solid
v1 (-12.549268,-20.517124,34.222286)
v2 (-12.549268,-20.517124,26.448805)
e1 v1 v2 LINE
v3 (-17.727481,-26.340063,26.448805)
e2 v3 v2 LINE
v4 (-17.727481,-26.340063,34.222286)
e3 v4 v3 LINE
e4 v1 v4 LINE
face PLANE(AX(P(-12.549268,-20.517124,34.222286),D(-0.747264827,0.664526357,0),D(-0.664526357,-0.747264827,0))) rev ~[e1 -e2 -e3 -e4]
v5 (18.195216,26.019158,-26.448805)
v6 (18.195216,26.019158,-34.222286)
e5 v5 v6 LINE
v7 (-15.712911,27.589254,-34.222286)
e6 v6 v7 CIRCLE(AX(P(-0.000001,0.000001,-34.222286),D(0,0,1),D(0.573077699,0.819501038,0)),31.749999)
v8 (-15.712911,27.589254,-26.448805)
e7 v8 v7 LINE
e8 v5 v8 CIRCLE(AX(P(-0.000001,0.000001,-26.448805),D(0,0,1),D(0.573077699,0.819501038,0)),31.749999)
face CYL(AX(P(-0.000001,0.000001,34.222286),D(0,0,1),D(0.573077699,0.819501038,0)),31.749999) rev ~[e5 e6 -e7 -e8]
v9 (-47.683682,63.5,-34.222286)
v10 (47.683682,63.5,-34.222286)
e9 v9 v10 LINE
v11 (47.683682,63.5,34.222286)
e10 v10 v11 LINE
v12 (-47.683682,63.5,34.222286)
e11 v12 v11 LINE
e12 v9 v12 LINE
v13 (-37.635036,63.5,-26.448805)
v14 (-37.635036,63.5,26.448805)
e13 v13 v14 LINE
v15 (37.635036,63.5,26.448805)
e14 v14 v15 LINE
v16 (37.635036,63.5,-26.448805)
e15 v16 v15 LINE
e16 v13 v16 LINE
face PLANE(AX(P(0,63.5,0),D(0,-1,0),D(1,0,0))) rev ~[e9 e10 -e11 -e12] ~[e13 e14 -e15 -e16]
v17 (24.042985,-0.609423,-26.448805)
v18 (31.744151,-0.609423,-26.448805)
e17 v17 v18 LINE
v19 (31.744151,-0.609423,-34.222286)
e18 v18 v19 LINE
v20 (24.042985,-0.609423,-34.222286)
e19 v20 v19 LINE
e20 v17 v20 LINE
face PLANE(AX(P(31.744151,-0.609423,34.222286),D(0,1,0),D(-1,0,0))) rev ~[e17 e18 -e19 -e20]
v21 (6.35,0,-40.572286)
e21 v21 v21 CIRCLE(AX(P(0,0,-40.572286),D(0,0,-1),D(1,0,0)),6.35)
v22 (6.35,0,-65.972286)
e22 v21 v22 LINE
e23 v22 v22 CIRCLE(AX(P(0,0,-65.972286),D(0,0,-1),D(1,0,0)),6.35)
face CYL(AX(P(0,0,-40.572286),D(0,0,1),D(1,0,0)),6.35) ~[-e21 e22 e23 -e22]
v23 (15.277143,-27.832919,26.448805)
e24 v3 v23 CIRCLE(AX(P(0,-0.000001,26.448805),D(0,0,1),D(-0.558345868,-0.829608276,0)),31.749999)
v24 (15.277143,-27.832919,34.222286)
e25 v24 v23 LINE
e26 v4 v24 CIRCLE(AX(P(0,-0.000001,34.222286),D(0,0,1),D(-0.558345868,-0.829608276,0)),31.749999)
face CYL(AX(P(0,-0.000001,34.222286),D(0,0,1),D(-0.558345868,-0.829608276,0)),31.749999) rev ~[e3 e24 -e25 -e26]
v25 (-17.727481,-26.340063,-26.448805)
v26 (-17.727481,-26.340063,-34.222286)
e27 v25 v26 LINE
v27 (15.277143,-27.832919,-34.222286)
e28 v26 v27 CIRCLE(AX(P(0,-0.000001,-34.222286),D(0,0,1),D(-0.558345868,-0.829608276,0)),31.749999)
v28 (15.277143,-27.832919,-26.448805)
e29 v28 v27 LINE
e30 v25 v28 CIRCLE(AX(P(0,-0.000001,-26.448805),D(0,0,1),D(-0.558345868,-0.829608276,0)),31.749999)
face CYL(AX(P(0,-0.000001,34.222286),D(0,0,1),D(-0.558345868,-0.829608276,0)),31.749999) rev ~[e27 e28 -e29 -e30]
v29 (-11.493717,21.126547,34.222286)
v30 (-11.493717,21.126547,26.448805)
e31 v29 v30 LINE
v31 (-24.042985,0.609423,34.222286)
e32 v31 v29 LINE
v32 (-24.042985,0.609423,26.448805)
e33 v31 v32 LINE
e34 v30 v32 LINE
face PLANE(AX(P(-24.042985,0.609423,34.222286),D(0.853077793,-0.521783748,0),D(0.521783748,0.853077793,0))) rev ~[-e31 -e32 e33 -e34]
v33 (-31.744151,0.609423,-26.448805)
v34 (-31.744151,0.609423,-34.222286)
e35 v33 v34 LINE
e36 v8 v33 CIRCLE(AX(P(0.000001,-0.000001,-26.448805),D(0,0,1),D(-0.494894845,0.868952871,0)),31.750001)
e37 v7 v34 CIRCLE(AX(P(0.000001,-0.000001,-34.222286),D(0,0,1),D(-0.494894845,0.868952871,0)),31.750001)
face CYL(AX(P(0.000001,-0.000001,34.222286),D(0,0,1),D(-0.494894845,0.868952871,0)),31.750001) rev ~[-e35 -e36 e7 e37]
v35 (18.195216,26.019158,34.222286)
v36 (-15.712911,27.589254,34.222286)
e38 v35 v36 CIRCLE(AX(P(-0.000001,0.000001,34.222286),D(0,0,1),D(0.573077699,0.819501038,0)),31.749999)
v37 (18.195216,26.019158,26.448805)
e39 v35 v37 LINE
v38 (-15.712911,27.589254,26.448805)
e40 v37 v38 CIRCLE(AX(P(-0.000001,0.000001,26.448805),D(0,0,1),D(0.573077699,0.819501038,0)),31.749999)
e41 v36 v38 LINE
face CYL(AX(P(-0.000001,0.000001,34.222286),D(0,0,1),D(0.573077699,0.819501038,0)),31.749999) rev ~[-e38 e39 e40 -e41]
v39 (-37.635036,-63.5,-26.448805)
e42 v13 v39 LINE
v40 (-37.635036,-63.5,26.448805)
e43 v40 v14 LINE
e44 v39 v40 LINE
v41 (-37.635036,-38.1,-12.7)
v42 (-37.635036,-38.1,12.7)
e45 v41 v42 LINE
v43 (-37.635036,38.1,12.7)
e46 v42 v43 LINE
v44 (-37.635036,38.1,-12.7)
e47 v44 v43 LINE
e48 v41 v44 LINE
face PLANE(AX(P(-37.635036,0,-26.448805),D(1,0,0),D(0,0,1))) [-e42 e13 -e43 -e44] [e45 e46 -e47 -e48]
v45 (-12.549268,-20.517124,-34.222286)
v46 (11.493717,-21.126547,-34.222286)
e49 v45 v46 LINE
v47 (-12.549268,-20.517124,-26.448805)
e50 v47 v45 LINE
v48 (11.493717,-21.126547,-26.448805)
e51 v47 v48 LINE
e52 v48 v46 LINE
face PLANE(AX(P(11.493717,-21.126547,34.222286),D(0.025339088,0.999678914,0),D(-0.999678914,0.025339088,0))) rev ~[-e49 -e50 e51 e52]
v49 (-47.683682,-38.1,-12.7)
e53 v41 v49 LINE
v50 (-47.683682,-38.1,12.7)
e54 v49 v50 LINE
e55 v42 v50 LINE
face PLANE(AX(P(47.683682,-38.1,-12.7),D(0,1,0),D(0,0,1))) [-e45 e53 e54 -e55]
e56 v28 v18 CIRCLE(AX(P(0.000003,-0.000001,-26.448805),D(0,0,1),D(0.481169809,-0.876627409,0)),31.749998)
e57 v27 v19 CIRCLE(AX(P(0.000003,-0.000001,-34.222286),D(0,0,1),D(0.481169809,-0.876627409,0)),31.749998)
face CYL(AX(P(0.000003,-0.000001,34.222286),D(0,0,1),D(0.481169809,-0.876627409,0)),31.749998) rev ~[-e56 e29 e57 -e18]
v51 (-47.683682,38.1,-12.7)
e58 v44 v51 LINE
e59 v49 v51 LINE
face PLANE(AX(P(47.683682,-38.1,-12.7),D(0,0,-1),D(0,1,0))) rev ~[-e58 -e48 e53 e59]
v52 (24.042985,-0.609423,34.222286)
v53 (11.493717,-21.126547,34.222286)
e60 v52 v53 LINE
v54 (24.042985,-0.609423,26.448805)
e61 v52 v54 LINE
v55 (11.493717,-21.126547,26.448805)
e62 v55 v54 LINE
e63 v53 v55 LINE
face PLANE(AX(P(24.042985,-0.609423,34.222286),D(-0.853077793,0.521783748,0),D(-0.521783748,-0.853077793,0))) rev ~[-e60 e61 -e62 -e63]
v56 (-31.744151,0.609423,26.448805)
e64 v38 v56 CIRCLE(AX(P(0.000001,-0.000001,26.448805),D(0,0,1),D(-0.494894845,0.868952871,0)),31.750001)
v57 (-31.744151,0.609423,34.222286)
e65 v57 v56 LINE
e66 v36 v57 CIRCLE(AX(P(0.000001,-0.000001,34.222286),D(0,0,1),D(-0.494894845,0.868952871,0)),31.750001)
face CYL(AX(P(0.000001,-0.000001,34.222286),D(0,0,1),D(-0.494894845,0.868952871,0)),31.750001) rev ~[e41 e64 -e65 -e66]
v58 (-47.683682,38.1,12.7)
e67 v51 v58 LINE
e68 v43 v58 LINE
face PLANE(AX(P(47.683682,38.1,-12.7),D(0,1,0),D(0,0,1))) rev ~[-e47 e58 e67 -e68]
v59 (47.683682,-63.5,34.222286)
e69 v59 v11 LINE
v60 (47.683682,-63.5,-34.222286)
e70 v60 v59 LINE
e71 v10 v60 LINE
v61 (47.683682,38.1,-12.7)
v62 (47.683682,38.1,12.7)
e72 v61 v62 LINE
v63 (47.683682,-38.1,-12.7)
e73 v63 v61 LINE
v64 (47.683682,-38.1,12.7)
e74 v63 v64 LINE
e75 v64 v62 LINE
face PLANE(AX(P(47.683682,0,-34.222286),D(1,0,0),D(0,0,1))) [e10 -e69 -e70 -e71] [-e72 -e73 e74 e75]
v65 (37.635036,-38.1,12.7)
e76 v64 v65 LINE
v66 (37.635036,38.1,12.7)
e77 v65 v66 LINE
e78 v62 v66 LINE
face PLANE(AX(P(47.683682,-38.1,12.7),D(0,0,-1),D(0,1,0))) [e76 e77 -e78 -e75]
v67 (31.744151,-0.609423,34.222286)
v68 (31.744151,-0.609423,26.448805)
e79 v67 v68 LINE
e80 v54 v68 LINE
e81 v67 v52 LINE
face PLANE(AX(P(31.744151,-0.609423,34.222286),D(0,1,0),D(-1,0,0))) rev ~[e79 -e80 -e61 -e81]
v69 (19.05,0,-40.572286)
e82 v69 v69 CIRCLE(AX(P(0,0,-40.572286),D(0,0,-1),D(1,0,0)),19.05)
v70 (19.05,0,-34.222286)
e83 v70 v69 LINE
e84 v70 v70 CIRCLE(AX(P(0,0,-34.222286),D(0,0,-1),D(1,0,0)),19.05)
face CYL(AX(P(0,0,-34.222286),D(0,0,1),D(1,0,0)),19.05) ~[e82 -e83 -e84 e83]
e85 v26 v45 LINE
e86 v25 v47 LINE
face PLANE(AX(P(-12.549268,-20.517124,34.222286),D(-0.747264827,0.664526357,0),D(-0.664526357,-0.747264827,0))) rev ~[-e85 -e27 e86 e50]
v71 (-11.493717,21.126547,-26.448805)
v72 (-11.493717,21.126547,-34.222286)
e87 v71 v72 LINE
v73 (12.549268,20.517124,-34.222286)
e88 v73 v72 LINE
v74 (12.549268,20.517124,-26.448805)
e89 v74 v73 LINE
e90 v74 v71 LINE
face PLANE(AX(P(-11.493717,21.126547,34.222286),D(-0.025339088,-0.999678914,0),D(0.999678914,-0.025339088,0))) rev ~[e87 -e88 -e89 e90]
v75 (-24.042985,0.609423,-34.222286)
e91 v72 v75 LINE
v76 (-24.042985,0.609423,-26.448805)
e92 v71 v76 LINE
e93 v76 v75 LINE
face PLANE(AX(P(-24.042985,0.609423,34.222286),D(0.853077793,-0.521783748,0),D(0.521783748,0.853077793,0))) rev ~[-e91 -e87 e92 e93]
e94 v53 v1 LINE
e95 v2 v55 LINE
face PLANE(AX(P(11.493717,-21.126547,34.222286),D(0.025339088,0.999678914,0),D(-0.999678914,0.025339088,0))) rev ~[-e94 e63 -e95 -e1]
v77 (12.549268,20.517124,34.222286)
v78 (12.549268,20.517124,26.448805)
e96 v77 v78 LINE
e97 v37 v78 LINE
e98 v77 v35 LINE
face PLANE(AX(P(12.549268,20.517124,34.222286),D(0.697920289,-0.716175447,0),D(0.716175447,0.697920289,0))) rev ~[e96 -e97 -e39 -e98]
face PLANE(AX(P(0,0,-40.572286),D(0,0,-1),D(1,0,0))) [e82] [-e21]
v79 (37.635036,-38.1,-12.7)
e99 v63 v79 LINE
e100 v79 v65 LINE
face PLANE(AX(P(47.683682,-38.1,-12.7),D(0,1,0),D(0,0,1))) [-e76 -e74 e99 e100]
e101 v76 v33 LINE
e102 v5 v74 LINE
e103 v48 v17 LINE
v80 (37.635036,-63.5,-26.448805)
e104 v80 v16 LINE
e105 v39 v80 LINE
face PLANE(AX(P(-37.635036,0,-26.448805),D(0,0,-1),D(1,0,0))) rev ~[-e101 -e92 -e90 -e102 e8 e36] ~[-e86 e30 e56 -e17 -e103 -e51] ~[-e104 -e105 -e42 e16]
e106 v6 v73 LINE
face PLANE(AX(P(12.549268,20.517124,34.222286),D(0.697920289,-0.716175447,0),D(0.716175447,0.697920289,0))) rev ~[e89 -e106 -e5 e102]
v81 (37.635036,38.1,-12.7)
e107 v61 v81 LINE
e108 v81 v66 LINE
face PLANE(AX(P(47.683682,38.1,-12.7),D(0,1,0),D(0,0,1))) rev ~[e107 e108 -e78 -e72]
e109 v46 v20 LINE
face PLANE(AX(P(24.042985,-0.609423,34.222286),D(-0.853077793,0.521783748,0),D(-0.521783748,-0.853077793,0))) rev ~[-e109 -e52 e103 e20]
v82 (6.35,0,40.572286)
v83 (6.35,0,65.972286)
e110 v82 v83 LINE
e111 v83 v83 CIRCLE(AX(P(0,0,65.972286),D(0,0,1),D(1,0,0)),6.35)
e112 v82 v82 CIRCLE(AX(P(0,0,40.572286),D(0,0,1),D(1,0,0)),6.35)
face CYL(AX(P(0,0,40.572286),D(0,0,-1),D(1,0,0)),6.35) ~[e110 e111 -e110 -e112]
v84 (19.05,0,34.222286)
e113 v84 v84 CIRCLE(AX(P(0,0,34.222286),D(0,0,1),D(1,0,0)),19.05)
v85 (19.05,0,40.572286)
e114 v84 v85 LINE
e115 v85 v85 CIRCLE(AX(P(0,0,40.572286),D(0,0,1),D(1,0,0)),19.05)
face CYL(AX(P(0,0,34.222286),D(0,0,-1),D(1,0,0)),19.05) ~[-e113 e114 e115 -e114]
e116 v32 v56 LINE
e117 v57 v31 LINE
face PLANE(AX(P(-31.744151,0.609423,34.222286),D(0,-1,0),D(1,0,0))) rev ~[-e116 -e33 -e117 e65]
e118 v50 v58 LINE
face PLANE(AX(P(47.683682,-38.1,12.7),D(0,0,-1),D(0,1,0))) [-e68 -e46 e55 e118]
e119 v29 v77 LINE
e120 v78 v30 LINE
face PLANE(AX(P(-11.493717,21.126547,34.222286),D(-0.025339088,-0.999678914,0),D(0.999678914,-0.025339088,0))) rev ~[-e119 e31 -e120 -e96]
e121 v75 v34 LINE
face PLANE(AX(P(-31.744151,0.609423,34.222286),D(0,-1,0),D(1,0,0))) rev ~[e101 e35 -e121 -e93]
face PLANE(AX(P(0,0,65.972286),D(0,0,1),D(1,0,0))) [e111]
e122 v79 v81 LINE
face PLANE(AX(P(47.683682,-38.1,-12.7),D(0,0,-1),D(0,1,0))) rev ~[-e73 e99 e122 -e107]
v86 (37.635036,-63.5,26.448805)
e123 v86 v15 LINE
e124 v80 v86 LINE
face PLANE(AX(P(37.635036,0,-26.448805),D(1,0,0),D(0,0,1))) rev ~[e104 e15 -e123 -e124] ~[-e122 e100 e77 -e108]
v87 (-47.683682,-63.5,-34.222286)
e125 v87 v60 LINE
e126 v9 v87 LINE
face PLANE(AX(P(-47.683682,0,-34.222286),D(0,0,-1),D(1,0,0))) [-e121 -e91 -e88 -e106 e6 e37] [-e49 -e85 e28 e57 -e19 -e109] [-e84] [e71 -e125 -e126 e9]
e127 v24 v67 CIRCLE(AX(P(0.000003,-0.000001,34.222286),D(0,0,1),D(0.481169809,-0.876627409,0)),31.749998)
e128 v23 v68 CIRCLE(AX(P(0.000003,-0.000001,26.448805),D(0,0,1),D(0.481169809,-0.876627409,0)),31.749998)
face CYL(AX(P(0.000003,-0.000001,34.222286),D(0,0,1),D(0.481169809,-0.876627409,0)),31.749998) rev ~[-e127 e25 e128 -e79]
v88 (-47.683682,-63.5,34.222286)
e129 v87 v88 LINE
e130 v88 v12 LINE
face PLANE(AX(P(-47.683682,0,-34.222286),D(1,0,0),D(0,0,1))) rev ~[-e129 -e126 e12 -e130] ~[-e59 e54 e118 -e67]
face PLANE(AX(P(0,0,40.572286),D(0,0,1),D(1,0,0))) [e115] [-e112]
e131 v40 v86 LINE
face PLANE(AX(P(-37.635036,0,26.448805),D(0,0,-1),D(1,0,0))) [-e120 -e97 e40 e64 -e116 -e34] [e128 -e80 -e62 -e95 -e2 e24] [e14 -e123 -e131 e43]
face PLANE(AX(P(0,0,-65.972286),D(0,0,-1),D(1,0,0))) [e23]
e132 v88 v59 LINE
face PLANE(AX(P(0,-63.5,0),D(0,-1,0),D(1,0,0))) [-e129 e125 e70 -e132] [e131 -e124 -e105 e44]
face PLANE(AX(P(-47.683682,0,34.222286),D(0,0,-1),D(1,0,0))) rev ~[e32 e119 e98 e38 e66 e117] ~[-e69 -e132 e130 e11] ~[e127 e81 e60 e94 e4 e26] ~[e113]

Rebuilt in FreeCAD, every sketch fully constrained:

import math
import FreeCAD as App
import Part
import Sketcher
from FreeCAD import Vector
Q = App.Units.Quantity


def add_polygon(sketch, points):
    """Adds a closed chain of lines whose ends are joined by coincident constraints."""
    first, n = sketch.GeometryCount, len(points)
    for a, b in zip(points, points[1:] + points[:1]):
        sketch.addGeometry(Part.LineSegment(App.Vector(*a, 0), App.Vector(*b, 0)), False)
    for i in range(n):
        sketch.addConstraint(Sketcher.Constraint("Coincident", first + i, 2, first + (i + 1) % n, 1))

doc = App.newDocument("Part")
body = doc.addObject("PartDesign::Body", "Body")

# Sketch on XZ plane
sketch1 = body.newObject("Sketcher::SketchObject", "Sketch")
sketch1.AttachmentSupport = (doc.getObject("XZ_Plane"), [""])
sketch1.MapMode = "FlatFace"
add_polygon(sketch1, [(-47.683682, 34.222286), (-47.683682, -34.222286), (47.683682, -34.222286), (47.683682, 34.222286)])  # lines 0-3
add_polygon(sketch1, [(37.635036, -26.448805), (-37.635036, -26.448805), (-37.635036, 26.448805), (37.635036, 26.448805)])  # lines 4-7
sketch1.addConstraint(Sketcher.Constraint("Vertical", 0))
sketch1.addConstraint(Sketcher.Constraint("Horizontal", 1))
sketch1.addConstraint(Sketcher.Constraint("Vertical", 2))
sketch1.addConstraint(Sketcher.Constraint("Horizontal", 3))
sketch1.addConstraint(Sketcher.Constraint("Horizontal", 4))
sketch1.addConstraint(Sketcher.Constraint("Vertical", 5))
sketch1.addConstraint(Sketcher.Constraint("Horizontal", 6))
sketch1.addConstraint(Sketcher.Constraint("Vertical", 7))
sketch1.addConstraint(Sketcher.Constraint("Symmetric", 0, 2, 2, 2, -1, 1))
sketch1.addConstraint(Sketcher.Constraint("Symmetric", 4, 2, 6, 2, -1, 1))
sketch1.addConstraint(Sketcher.Constraint("DistanceX", 4, 2, 4, 1, 75.270072))
sketch1.addConstraint(Sketcher.Constraint("DistanceY", 0, 2, 0, 1, 68.444572))
sketch1.addConstraint(Sketcher.Constraint("DistanceY", 5, 1, 5, 2, 52.89761))
sketch1.addConstraint(Sketcher.Constraint("DistanceX", 1, 1, 1, 2, 95.367364))
pad1 = body.newObject("PartDesign::Pad", "Pad")
pad1.Profile = sketch1
pad1.Length = Q("5 in")
pad1.Midplane = True

# Sketch on XY plane
sketch2 = body.newObject("Sketcher::SketchObject", "Sketch001")
sketch2.AttachmentSupport = (doc.getObject("XY_Plane"), [""])
sketch2.MapMode = "FlatFace"
sketch2.AttachmentOffset = App.Placement(Vector(0, 0, 34.222286), App.Rotation())
sketch2.addGeometry(Part.LineSegment(Vector(12.549268, 20.517124, 0), Vector(18.195216, 26.019158, 0)), False)
sketch2.addGeometry(Part.ArcOfCircle(Part.Circle(Vector(-0.000001, 0.000001, 0), Vector(0, 0, 1), 31.749999), math.radians(55.034877), math.radians(119.662815)), False)
sketch2.addGeometry(Part.ArcOfCircle(Part.Circle(Vector(0.000001, -0.000001, 0), Vector(0, 0, 1), 31.750001), math.radians(119.662817), math.radians(178.900172)), False)
sketch2.addGeometry(Part.LineSegment(Vector(-31.744151, 0.609423, 0), Vector(-24.042985, 0.609423, 0)), False)
sketch2.addGeometry(Part.LineSegment(Vector(-24.042985, 0.609423, 0), Vector(-11.493717, 21.126547, 0)), False)
sketch2.addGeometry(Part.LineSegment(Vector(-11.493717, 21.126547, 0), Vector(12.549268, 20.517124, 0)), False)
sketch2.addGeometry(Part.ArcOfCircle(Part.Circle(Vector(0, -0.000001, 0), Vector(0, 0, 1), 31.749999), math.radians(-123.941481), math.radians(-61.238163)), False)
sketch2.addGeometry(Part.ArcOfCircle(Part.Circle(Vector(0.000003, -0.000001, 0), Vector(0, 0, 1), 31.749998), math.radians(-61.238168), math.radians(-1.099826)), False)
sketch2.addGeometry(Part.LineSegment(Vector(31.744151, -0.609423, 0), Vector(24.042985, -0.609423, 0)), False)
sketch2.addGeometry(Part.LineSegment(Vector(24.042985, -0.609423, 0), Vector(11.493717, -21.126547, 0)), False)
sketch2.addGeometry(Part.LineSegment(Vector(11.493717, -21.126547, 0), Vector(-12.549268, -20.517124, 0)), False)
sketch2.addGeometry(Part.LineSegment(Vector(-12.549268, -20.517124, 0), Vector(-17.727481, -26.340063, 0)), False)
sketch2.addConstraint(Sketcher.Constraint("Coincident", 0, 2, 1, 1))
sketch2.addConstraint(Sketcher.Constraint("Tangent", 1, 2, 2, 1))
sketch2.addConstraint(Sketcher.Constraint("Coincident", 2, 2, 3, 1))
sketch2.addConstraint(Sketcher.Constraint("Coincident", 3, 2, 4, 1))
sketch2.addConstraint(Sketcher.Constraint("Coincident", 4, 2, 5, 1))
sketch2.addConstraint(Sketcher.Constraint("Coincident", 5, 2, 0, 1))
sketch2.addConstraint(Sketcher.Constraint("Tangent", 6, 2, 7, 1))
sketch2.addConstraint(Sketcher.Constraint("Coincident", 7, 2, 8, 1))
sketch2.addConstraint(Sketcher.Constraint("Coincident", 8, 2, 9, 1))
sketch2.addConstraint(Sketcher.Constraint("Coincident", 9, 2, 10, 1))
sketch2.addConstraint(Sketcher.Constraint("Coincident", 10, 2, 11, 1))
sketch2.addConstraint(Sketcher.Constraint("Coincident", 11, 2, 6, 1))
sketch2.addConstraint(Sketcher.Constraint("Horizontal", 3))
sketch2.addConstraint(Sketcher.Constraint("Horizontal", 8))
sketch2.addConstraint(Sketcher.Constraint("Coincident", 1, 3, -1, 1))
sketch2.addConstraint(Sketcher.Constraint("Coincident", 6, 3, -1, 1))
sketch2.addConstraint(Sketcher.Constraint("Equal", 1, 2))
sketch2.addConstraint(Sketcher.Constraint("Equal", 1, 6))
sketch2.addConstraint(Sketcher.Constraint("Equal", 6, 7))
sketch2.addConstraint(Sketcher.Constraint("Symmetric", 3, 2, 8, 2, -1, 1))
sketch2.addConstraint(Sketcher.Constraint("Symmetric", 4, 2, 9, 2, -1, 1))
sketch2.addConstraint(Sketcher.Constraint("Symmetric", 5, 2, 10, 2, -1, 1))
sketch2.addConstraint(Sketcher.Constraint("Equal", 4, 5))
sketch2.addConstraint(Sketcher.Constraint("Radius", 1, Q("1.25 in")))
sketch2.addConstraint(Sketcher.Constraint("DistanceX", 11, 2, 9, 2, 29.221198))
sketch2.addConstraint(Sketcher.Constraint("Distance", 0, 7.88347))
sketch2.addConstraint(Sketcher.Constraint("DistanceX", 3, 1, 3, 2, 7.701166))
sketch2.addConstraint(Sketcher.Constraint("DistanceY", -1, 1, 0, 2, 26.019158))
sketch2.addConstraint(Sketcher.Constraint("DistanceX", 1, 2, -1, 1, 15.712911))
sketch2.addConstraint(Sketcher.Constraint("DistanceX", 2, 2, -1, 1, 31.744151))
sketch2.addConstraint(Sketcher.Constraint("DistanceY", 6, 2, -1, 1, 27.832919))
sketch2.addConstraint(Sketcher.Constraint("DistanceX", 11, 2, -1, 1, 17.727481))
sketch2.addConstraint(Sketcher.Constraint("DistanceY", 6, 3, 4, 2, 21.126548))
pocket1 = body.newObject("PartDesign::Pocket", "Pocket")
pocket1.Profile = sketch2
pocket1.Type = "ThroughAll"

# Sketch on XY plane
sketch3 = body.newObject("Sketcher::SketchObject", "Sketch002")
sketch3.AttachmentSupport = (doc.getObject("XY_Plane"), [""])
sketch3.MapMode = "FlatFace"
sketch3.AttachmentOffset = App.Placement(Vector(0, 0, 34.222286), App.Rotation())
sketch3.addGeometry(Part.Circle(Vector(0, 0, 0), Vector(0, 0, 1), 19.05), False)
sketch3.addConstraint(Sketcher.Constraint("Coincident", 0, 3, -1, 1))
sketch3.addConstraint(Sketcher.Constraint("Diameter", 0, Q("1.5 in")))
pad2 = body.newObject("PartDesign::Pad", "Pad001")
pad2.Profile = sketch3
pad2.Length = Q("0.25 in")

# Sketch on XY plane
sketch4 = body.newObject("Sketcher::SketchObject", "Sketch003")
sketch4.AttachmentSupport = (doc.getObject("XY_Plane"), [""])
sketch4.MapMode = "FlatFace"
sketch4.AttachmentOffset = App.Placement(Vector(0, 0, -34.222286), App.Rotation())
sketch4.addGeometry(Part.Circle(Vector(0, 0, 0), Vector(0, 0, 1), 19.05), False)
sketch4.addConstraint(Sketcher.Constraint("Coincident", 0, 3, -1, 1))
sketch4.addConstraint(Sketcher.Constraint("Diameter", 0, Q("1.5 in")))
pad3 = body.newObject("PartDesign::Pad", "Pad002")
pad3.Profile = sketch4
pad3.Length = Q("0.25 in")
pad3.Reversed = True

# Sketch on YZ plane
sketch5 = body.newObject("Sketcher::SketchObject", "Sketch004")
sketch5.AttachmentSupport = (doc.getObject("YZ_Plane"), [""])
sketch5.MapMode = "FlatFace"
sketch5.AttachmentOffset = App.Placement(Vector(0, 0, 47.683682), App.Rotation())
add_polygon(sketch5, [(-38.1, 12.7), (-38.1, -12.7), (38.1, -12.7), (38.1, 12.7)])  # lines 0-3
sketch5.addConstraint(Sketcher.Constraint("Vertical", 0))
sketch5.addConstraint(Sketcher.Constraint("Horizontal", 1))
sketch5.addConstraint(Sketcher.Constraint("Vertical", 2))
sketch5.addConstraint(Sketcher.Constraint("Horizontal", 3))
sketch5.addConstraint(Sketcher.Constraint("Symmetric", 0, 2, 2, 2, -1, 1))
sketch5.addConstraint(Sketcher.Constraint("DistanceX", 1, 1, 1, 2, Q("3 in")))
sketch5.addConstraint(Sketcher.Constraint("DistanceY", 0, 2, 0, 1, Q("1 in")))
pocket2 = body.newObject("PartDesign::Pocket", "Pocket001")
pocket2.Profile = sketch5
pocket2.Type = "ThroughAll"

# Sketch on XY plane
sketch6 = body.newObject("Sketcher::SketchObject", "Sketch005")
sketch6.AttachmentSupport = (doc.getObject("XY_Plane"), [""])
sketch6.MapMode = "FlatFace"
sketch6.AttachmentOffset = App.Placement(Vector(0, 0, 40.572286), App.Rotation())
sketch6.addGeometry(Part.Circle(Vector(0, 0, 0), Vector(0, 0, 1), 6.35), False)
sketch6.addConstraint(Sketcher.Constraint("Coincident", 0, 3, -1, 1))
sketch6.addConstraint(Sketcher.Constraint("Diameter", 0, Q("0.5 in")))
pad4 = body.newObject("PartDesign::Pad", "Pad003")
pad4.Profile = sketch6
pad4.Length = Q("1 in")

# Sketch on XY plane
sketch7 = body.newObject("Sketcher::SketchObject", "Sketch006")
sketch7.AttachmentSupport = (doc.getObject("XY_Plane"), [""])
sketch7.MapMode = "FlatFace"
sketch7.AttachmentOffset = App.Placement(Vector(0, 0, -40.572286), App.Rotation())
sketch7.addGeometry(Part.Circle(Vector(0, 0, 0), Vector(0, 0, 1), 6.35), False)
sketch7.addConstraint(Sketcher.Constraint("Coincident", 0, 3, -1, 1))
sketch7.addConstraint(Sketcher.Constraint("Diameter", 0, Q("0.5 in")))
pad5 = body.newObject("PartDesign::Pad", "Pad004")
pad5.Profile = sketch7
pad5.Length = Q("1 in")
pad5.Reversed = True

doc.recompute()
